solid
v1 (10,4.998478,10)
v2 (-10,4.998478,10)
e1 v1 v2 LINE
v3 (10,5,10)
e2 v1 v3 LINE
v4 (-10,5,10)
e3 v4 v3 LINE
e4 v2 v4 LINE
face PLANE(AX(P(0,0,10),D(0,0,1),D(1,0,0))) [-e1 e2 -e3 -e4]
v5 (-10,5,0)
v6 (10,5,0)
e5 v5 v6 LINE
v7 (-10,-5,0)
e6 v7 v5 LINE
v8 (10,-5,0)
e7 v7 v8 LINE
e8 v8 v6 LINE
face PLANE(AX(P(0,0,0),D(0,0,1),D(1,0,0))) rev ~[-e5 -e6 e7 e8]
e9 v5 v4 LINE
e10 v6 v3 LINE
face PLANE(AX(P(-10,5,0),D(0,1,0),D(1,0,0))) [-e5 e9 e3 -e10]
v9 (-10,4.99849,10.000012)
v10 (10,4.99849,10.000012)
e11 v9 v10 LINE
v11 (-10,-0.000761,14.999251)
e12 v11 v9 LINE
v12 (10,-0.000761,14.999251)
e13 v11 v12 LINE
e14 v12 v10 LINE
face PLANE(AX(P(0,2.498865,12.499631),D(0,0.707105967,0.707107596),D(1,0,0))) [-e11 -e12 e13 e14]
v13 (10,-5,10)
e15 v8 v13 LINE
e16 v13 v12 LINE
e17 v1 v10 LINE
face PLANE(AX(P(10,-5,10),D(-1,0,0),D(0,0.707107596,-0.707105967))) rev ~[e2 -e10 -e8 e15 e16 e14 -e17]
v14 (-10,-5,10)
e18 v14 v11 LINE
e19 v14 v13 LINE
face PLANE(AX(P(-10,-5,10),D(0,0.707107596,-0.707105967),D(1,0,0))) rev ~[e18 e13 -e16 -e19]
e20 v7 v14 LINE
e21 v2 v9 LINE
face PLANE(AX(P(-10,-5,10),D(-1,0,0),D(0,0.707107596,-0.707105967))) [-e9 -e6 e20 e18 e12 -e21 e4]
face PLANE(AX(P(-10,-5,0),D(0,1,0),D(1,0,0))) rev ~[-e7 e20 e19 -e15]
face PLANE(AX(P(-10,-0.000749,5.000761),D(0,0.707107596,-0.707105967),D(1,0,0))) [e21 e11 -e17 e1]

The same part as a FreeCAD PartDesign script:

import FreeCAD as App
import Part
import Sketcher
from FreeCAD import Vector
Q = App.Units.Quantity


def add_polygon(sketch, points):
    """Adds a closed chain of lines whose ends are joined by coincident constraints."""
    first, n = sketch.GeometryCount, len(points)
    for a, b in zip(points, points[1:] + points[:1]):
        sketch.addGeometry(Part.LineSegment(App.Vector(*a, 0), App.Vector(*b, 0)), False)
    for i in range(n):
        sketch.addConstraint(Sketcher.Constraint("Coincident", first + i, 2, first + (i + 1) % n, 1))

doc = App.newDocument("Part")
body = doc.addObject("PartDesign::Body", "Body")

sketch1 = body.newObject("Sketcher::SketchObject", "Sketch")
sketch1.AttachmentSupport = (doc.getObject("XY_Plane"), [""])
sketch1.MapMode = "FlatFace"
add_polygon(sketch1, [(0, 7.07), (0, 0), (20, 0), (20, 7.07)])
sketch1.addConstraint([
    Sketcher.Constraint("Vertical", 0),
    Sketcher.Constraint("Horizontal", 1),
    Sketcher.Constraint("Vertical", 2),
    Sketcher.Constraint("Horizontal", 3),
    Sketcher.Constraint("Coincident", 0, 2, -1, 1),
    Sketcher.Constraint("DistanceX", 1, 1, 1, 2, Q("20 mm")),
    Sketcher.Constraint("DistanceY", 0, 2, 0, 1, Q("7.07 mm")),
])
pad1 = body.newObject("PartDesign::Pad", "Pad")
pad1.Profile = sketch1
pad1.Length = 7.07
body2 = doc.addObject("PartDesign::Body", "Body001")
doc.recompute()

body.Placement = App.Placement(Vector(-10, -5, 10), App.Rotation(Vector(-1, 0, 0), 44.999934))
boolean = body2.newObject("PartDesign::Boolean", "Boolean")
boolean.Type = "Fuse"
boolean.addObjects([body])
body3 = doc.addObject("PartDesign::Body", "Body002")

sketch2 = body3.newObject("Sketcher::SketchObject", "Sketch001")
sketch2.AttachmentSupport = (doc.getObject("XY_Plane002"), [""])
sketch2.MapMode = "FlatFace"
add_polygon(sketch2, [(-10, 5), (-10, -5), (10, -5), (10, 5)])
sketch2.addConstraint([
    Sketcher.Constraint("Vertical", 0),
    Sketcher.Constraint("Horizontal", 1),
    Sketcher.Constraint("Vertical", 2),
    Sketcher.Constraint("Horizontal", 3),
    Sketcher.Constraint("Symmetric", 0, 2, 2, 2, -1, 1),
    Sketcher.Constraint("DistanceX", 1, 1, 1, 2, Q("20 mm")),
    Sketcher.Constraint("DistanceY", 0, 2, 0, 1, Q("10 mm")),
])
pad2 = body3.newObject("PartDesign::Pad", "Pad001")
pad2.Profile = sketch2
pad2.Length = 10
doc.recompute()

boolean2 = body3.newObject("PartDesign::Boolean", "Boolean001")
boolean2.Type = "Fuse"
boolean2.addObjects([body2])

doc.recompute()
